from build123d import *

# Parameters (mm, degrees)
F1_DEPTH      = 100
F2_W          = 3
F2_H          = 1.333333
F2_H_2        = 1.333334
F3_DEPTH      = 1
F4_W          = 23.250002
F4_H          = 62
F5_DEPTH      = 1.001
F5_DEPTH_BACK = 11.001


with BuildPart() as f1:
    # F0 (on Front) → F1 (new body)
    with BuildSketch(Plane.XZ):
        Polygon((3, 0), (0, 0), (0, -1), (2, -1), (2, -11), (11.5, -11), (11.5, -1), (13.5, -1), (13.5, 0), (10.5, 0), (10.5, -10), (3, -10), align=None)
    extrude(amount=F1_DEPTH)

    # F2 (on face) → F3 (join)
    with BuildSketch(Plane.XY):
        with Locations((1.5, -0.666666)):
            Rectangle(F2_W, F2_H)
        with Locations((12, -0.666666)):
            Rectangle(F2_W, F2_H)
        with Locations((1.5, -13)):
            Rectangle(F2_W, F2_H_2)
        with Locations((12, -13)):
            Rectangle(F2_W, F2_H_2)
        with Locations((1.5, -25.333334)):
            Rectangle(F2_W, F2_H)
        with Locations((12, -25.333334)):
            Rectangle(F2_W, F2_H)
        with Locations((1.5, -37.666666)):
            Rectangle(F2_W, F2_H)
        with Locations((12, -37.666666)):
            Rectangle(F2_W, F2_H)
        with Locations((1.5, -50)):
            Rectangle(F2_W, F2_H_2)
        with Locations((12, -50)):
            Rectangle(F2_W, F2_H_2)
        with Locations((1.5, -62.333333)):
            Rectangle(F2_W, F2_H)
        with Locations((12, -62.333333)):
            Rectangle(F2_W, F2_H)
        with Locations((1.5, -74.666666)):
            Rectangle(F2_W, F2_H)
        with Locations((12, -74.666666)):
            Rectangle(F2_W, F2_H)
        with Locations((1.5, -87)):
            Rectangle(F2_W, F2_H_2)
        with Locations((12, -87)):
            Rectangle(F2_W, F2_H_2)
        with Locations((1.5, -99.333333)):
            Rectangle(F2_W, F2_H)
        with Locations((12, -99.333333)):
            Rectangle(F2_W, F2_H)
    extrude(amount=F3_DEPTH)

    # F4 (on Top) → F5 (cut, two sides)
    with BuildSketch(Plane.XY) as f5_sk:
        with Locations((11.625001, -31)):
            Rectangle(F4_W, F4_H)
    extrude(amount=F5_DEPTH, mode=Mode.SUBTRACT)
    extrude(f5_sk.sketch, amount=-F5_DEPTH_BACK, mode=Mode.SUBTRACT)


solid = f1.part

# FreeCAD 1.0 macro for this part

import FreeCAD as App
import Part
import Sketcher
from FreeCAD import Vector

doc = App.newDocument("Part")
body = doc.addObject("PartDesign::Body", "Body")

sketch1 = body.newObject("Sketcher::SketchObject", "Sketch")
sketch1.AttachmentSupport = (doc.getObject("XZ_Plane"), [""])
sketch1.MapMode = "FlatFace"
sketch1.addGeometry([
    Part.LineSegment(Vector(3, 0, 0), Vector(0, 0, 0)),
    Part.LineSegment(Vector(0, 0, 0), Vector(0, -1, 0)),
    Part.LineSegment(Vector(0, -1, 0), Vector(2, -1, 0)),
    Part.LineSegment(Vector(2, -1, 0), Vector(2, -11, 0)),
    Part.LineSegment(Vector(2, -11, 0), Vector(11.5, -11, 0)),
    Part.LineSegment(Vector(11.5, -11, 0), Vector(11.5, -1, 0)),
    Part.LineSegment(Vector(11.5, -1, 0), Vector(13.5, -1, 0)),
    Part.LineSegment(Vector(13.5, -1, 0), Vector(13.5, 0, 0)),
    Part.LineSegment(Vector(13.5, 0, 0), Vector(10.5, 0, 0)),
    Part.LineSegment(Vector(10.5, 0, 0), Vector(10.5, -10, 0)),
    Part.LineSegment(Vector(10.5, -10, 0), Vector(3, -10, 0)),
    Part.LineSegment(Vector(3, -10, 0), Vector(3, 0, 0)),
], False)
sketch1.addConstraint([
    Sketcher.Constraint("Coincident", 0, 2, 1, 1),
    Sketcher.Constraint("Coincident", 1, 2, 2, 1),
    Sketcher.Constraint("Coincident", 2, 2, 3, 1),
    Sketcher.Constraint("Coincident", 3, 2, 4, 1),
    Sketcher.Constraint("Coincident", 4, 2, 5, 1),
    Sketcher.Constraint("Coincident", 5, 2, 6, 1),
    Sketcher.Constraint("Coincident", 6, 2, 7, 1),
    Sketcher.Constraint("Coincident", 7, 2, 8, 1),
    Sketcher.Constraint("Coincident", 8, 2, 9, 1),
    Sketcher.Constraint("Coincident", 9, 2, 10, 1),
    Sketcher.Constraint("Coincident", 10, 2, 11, 1),
    Sketcher.Constraint("Coincident", 11, 2, 0, 1),
    Sketcher.Constraint("Horizontal", 0),
    Sketcher.Constraint("Vertical", 1),
    Sketcher.Constraint("Horizontal", 2),
    Sketcher.Constraint("Vertical", 3),
    Sketcher.Constraint("Horizontal", 4),
    Sketcher.Constraint("Vertical", 5),
    Sketcher.Constraint("Horizontal", 6),
    Sketcher.Constraint("Vertical", 7),
    Sketcher.Constraint("Horizontal", 8),
    Sketcher.Constraint("Vertical", 9),
    Sketcher.Constraint("Horizontal", 10),
    Sketcher.Constraint("Vertical", 11),
    Sketcher.Constraint("Coincident", 0, 2, -1, 1),
    Sketcher.Constraint("PointOnObject", 7, 2, -1),
    Sketcher.Constraint("Horizontal", 2, 2, 5, 2),
    Sketcher.Constraint("Equal", 2, 6),
    Sketcher.Constraint("Equal", 0, 8),
    Sketcher.Constraint("Equal", 5, 9),
    Sketcher.Constraint("DistanceX", 0, 2, 0, 1, 3.0),
    Sketcher.Constraint("DistanceX", 2, 1, 2, 2, 2.0),
    Sketcher.Constraint("DistanceY", 1, 2, 1, 1, 1.0),
    Sketcher.Constraint("DistanceY", 3, 2, 3, 1, 10.0),
    Sketcher.Constraint("DistanceX", 4, 1, 4, 2, 9.5),
])
pad1 = body.newObject("PartDesign::Pad", "Pad")
pad1.Profile = sketch1
pad1.Length = 100

sketch2 = body.newObject("Sketcher::SketchObject", "Sketch001")
sketch2.AttachmentSupport = (doc.getObject("XY_Plane"), [""])
sketch2.MapMode = "FlatFace"
sketch2.addGeometry([
    Part.LineSegment(Vector(0, 0, 0), Vector(0, -1.3, 0)),
    Part.LineSegment(Vector(0, -1.3, 0), Vector(3, -1.3, 0)),
    Part.LineSegment(Vector(3, -1.3, 0), Vector(3, 0, 0)),
    Part.LineSegment(Vector(3, 0, 0), Vector(0, 0, 0)),
    Part.LineSegment(Vector(10.5, 0, 0), Vector(10.5, -1.3, 0)),
    Part.LineSegment(Vector(10.5, -1.3, 0), Vector(13.5, -1.3, 0)),
    Part.LineSegment(Vector(13.5, -1.3, 0), Vector(13.5, 0, 0)),
    Part.LineSegment(Vector(13.5, 0, 0), Vector(10.5, 0, 0)),
    Part.LineSegment(Vector(0, -12.3, 0), Vector(0, -13.7, 0)),
    Part.LineSegment(Vector(0, -13.7, 0), Vector(3, -13.7, 0)),
    Part.LineSegment(Vector(3, -13.7, 0), Vector(3, -12.3, 0)),
    Part.LineSegment(Vector(3, -12.3, 0), Vector(0, -12.3, 0)),
    Part.LineSegment(Vector(10.5, -12.3, 0), Vector(10.5, -13.7, 0)),
    Part.LineSegment(Vector(10.5, -13.7, 0), Vector(13.5, -13.7, 0)),
    Part.LineSegment(Vector(13.5, -13.7, 0), Vector(13.5, -12.3, 0)),
    Part.LineSegment(Vector(13.5, -12.3, 0), Vector(10.5, -12.3, 0)),
    Part.LineSegment(Vector(0, -24.7, 0), Vector(0, -26, 0)),
    Part.LineSegment(Vector(0, -26, 0), Vector(3, -26, 0)),
    Part.LineSegment(Vector(3, -26, 0), Vector(3, -24.7, 0)),
    Part.LineSegment(Vector(3, -24.7, 0), Vector(0, -24.7, 0)),
    Part.LineSegment(Vector(10.5, -24.7, 0), Vector(10.5, -26, 0)),
    Part.LineSegment(Vector(10.5, -26, 0), Vector(13.5, -26, 0)),
    Part.LineSegment(Vector(13.5, -26, 0), Vector(13.5, -24.7, 0)),
    Part.LineSegment(Vector(13.5, -24.7, 0), Vector(10.5, -24.7, 0)),
    Part.LineSegment(Vector(0, -37, 0), Vector(0, -38.3, 0)),
    Part.LineSegment(Vector(0, -38.3, 0), Vector(3, -38.3, 0)),
    Part.LineSegment(Vector(3, -38.3, 0), Vector(3, -37, 0)),
    Part.LineSegment(Vector(3, -37, 0), Vector(0, -37, 0)),
    Part.LineSegment(Vector(10.5, -37, 0), Vector(10.5, -38.3, 0)),
    Part.LineSegment(Vector(10.5, -38.3, 0), Vector(13.5, -38.3, 0)),
    Part.LineSegment(Vector(13.5, -38.3, 0), Vector(13.5, -37, 0)),
    Part.LineSegment(Vector(13.5, -37, 0), Vector(10.5, -37, 0)),
    Part.LineSegment(Vector(0, -49.3, 0), Vector(0, -50.7, 0)),
    Part.LineSegment(Vector(0, -50.7, 0), Vector(3, -50.7, 0)),
    Part.LineSegment(Vector(3, -50.7, 0), Vector(3, -49.3, 0)),
    Part.LineSegment(Vector(3, -49.3, 0), Vector(0, -49.3, 0)),
    Part.LineSegment(Vector(10.5, -49.3, 0), Vector(10.5, -50.7, 0)),
    Part.LineSegment(Vector(10.5, -50.7, 0), Vector(13.5, -50.7, 0)),
    Part.LineSegment(Vector(13.5, -50.7, 0), Vector(13.5, -49.3, 0)),
    Part.LineSegment(Vector(13.5, -49.3, 0), Vector(10.5, -49.3, 0)),
    Part.LineSegment(Vector(0, -61.7, 0), Vector(0, -63, 0)),
    Part.LineSegment(Vector(0, -63, 0), Vector(3, -63, 0)),
    Part.LineSegment(Vector(3, -63, 0), Vector(3, -61.7, 0)),
    Part.LineSegment(Vector(3, -61.7, 0), Vector(0, -61.7, 0)),
    Part.LineSegment(Vector(10.5, -61.7, 0), Vector(10.5, -63, 0)),
    Part.LineSegment(Vector(10.5, -63, 0), Vector(13.5, -63, 0)),
    Part.LineSegment(Vector(13.5, -63, 0), Vector(13.5, -61.7, 0)),
    Part.LineSegment(Vector(13.5, -61.7, 0), Vector(10.5, -61.7, 0)),
    Part.LineSegment(Vector(0, -74, 0), Vector(0, -75.3, 0)),
    Part.LineSegment(Vector(0, -75.3, 0), Vector(3, -75.3, 0)),
    Part.LineSegment(Vector(3, -75.3, 0), Vector(3, -74, 0)),
    Part.LineSegment(Vector(3, -74, 0), Vector(0, -74, 0)),
    Part.LineSegment(Vector(10.5, -74, 0), Vector(10.5, -75.3, 0)),
    Part.LineSegment(Vector(10.5, -75.3, 0), Vector(13.5, -75.3, 0)),
    Part.LineSegment(Vector(13.5, -75.3, 0), Vector(13.5, -74, 0)),
    Part.LineSegment(Vector(13.5, -74, 0), Vector(10.5, -74, 0)),
    Part.LineSegment(Vector(0, -86.3, 0), Vector(0, -87.7, 0)),
    Part.LineSegment(Vector(0, -87.7, 0), Vector(3, -87.7, 0)),
    Part.LineSegment(Vector(3, -87.7, 0), Vector(3, -86.3, 0)),
    Part.LineSegment(Vector(3, -86.3, 0), Vector(0, -86.3, 0)),
    Part.LineSegment(Vector(10.5, -86.3, 0), Vector(10.5, -87.7, 0)),
    Part.LineSegment(Vector(10.5, -87.7, 0), Vector(13.5, -87.7, 0)),
    Part.LineSegment(Vector(13.5, -87.7, 0), Vector(13.5, -86.3, 0)),
    Part.LineSegment(Vector(13.5, -86.3, 0), Vector(10.5, -86.3, 0)),
    Part.LineSegment(Vector(0, -98.7, 0), Vector(0, -100, 0)),
    Part.LineSegment(Vector(0, -100, 0), Vector(3, -100, 0)),
    Part.LineSegment(Vector(3, -100, 0), Vector(3, -98.7, 0)),
    Part.LineSegment(Vector(3, -98.7, 0), Vector(0, -98.7, 0)),
    Part.LineSegment(Vector(10.5, -98.7, 0), Vector(10.5, -100, 0)),
    Part.LineSegment(Vector(10.5, -100, 0), Vector(13.5, -100, 0)),
    Part.LineSegment(Vector(13.5, -100, 0), Vector(13.5, -98.7, 0)),
    Part.LineSegment(Vector(13.5, -98.7, 0), Vector(10.5, -98.7, 0)),
], False)
sketch2.addConstraint([
    Sketcher.Constraint("Coincident", 0, 2, 1, 1),
    Sketcher.Constraint("Coincident", 1, 2, 2, 1),
    Sketcher.Constraint("Coincident", 2, 2, 3, 1),
    Sketcher.Constraint("Coincident", 3, 2, 0, 1),
    Sketcher.Constraint("Coincident", 4, 2, 5, 1),
    Sketcher.Constraint("Coincident", 5, 2, 6, 1),
    Sketcher.Constraint("Coincident", 6, 2, 7, 1),
    Sketcher.Constraint("Coincident", 7, 2, 4, 1),
    Sketcher.Constraint("Coincident", 8, 2, 9, 1),
    Sketcher.Constraint("Coincident", 9, 2, 10, 1),
    Sketcher.Constraint("Coincident", 10, 2, 11, 1),
    Sketcher.Constraint("Coincident", 11, 2, 8, 1),
    Sketcher.Constraint("Coincident", 12, 2, 13, 1),
    Sketcher.Constraint("Coincident", 13, 2, 14, 1),
    Sketcher.Constraint("Coincident", 14, 2, 15, 1),
    Sketcher.Constraint("Coincident", 15, 2, 12, 1),
    Sketcher.Constraint("Coincident", 16, 2, 17, 1),
    Sketcher.Constraint("Coincident", 17, 2, 18, 1),
    Sketcher.Constraint("Coincident", 18, 2, 19, 1),
    Sketcher.Constraint("Coincident", 19, 2, 16, 1),
    Sketcher.Constraint("Coincident", 20, 2, 21, 1),
    Sketcher.Constraint("Coincident", 21, 2, 22, 1),
    Sketcher.Constraint("Coincident", 22, 2, 23, 1),
    Sketcher.Constraint("Coincident", 23, 2, 20, 1),
    Sketcher.Constraint("Coincident", 24, 2, 25, 1),
    Sketcher.Constraint("Coincident", 25, 2, 26, 1),
    Sketcher.Constraint("Coincident", 26, 2, 27, 1),
    Sketcher.Constraint("Coincident", 27, 2, 24, 1),
    Sketcher.Constraint("Coincident", 28, 2, 29, 1),
    Sketcher.Constraint("Coincident", 29, 2, 30, 1),
    Sketcher.Constraint("Coincident", 30, 2, 31, 1),
    Sketcher.Constraint("Coincident", 31, 2, 28, 1),
    Sketcher.Constraint("Coincident", 32, 2, 33, 1),
    Sketcher.Constraint("Coincident", 33, 2, 34, 1),
    Sketcher.Constraint("Coincident", 34, 2, 35, 1),
    Sketcher.Constraint("Coincident", 35, 2, 32, 1),
    Sketcher.Constraint("Coincident", 36, 2, 37, 1),
    Sketcher.Constraint("Coincident", 37, 2, 38, 1),
    Sketcher.Constraint("Coincident", 38, 2, 39, 1),
    Sketcher.Constraint("Coincident", 39, 2, 36, 1),
    Sketcher.Constraint("Coincident", 40, 2, 41, 1),
    Sketcher.Constraint("Coincident", 41, 2, 42, 1),
    Sketcher.Constraint("Coincident", 42, 2, 43, 1),
    Sketcher.Constraint("Coincident", 43, 2, 40, 1),
    Sketcher.Constraint("Coincident", 44, 2, 45, 1),
    Sketcher.Constraint("Coincident", 45, 2, 46, 1),
    Sketcher.Constraint("Coincident", 46, 2, 47, 1),
    Sketcher.Constraint("Coincident", 47, 2, 44, 1),
    Sketcher.Constraint("Coincident", 48, 2, 49, 1),
    Sketcher.Constraint("Coincident", 49, 2, 50, 1),
    Sketcher.Constraint("Coincident", 50, 2, 51, 1),
    Sketcher.Constraint("Coincident", 51, 2, 48, 1),
    Sketcher.Constraint("Coincident", 52, 2, 53, 1),
    Sketcher.Constraint("Coincident", 53, 2, 54, 1),
    Sketcher.Constraint("Coincident", 54, 2, 55, 1),
    Sketcher.Constraint("Coincident", 55, 2, 52, 1),
    Sketcher.Constraint("Coincident", 56, 2, 57, 1),
    Sketcher.Constraint("Coincident", 57, 2, 58, 1),
    Sketcher.Constraint("Coincident", 58, 2, 59, 1),
    Sketcher.Constraint("Coincident", 59, 2, 56, 1),
    Sketcher.Constraint("Coincident", 60, 2, 61, 1),
    Sketcher.Constraint("Coincident", 61, 2, 62, 1),
    Sketcher.Constraint("Coincident", 62, 2, 63, 1),
    Sketcher.Constraint("Coincident", 63, 2, 60, 1),
    Sketcher.Constraint("Coincident", 64, 2, 65, 1),
    Sketcher.Constraint("Coincident", 65, 2, 66, 1),
    Sketcher.Constraint("Coincident", 66, 2, 67, 1),
    Sketcher.Constraint("Coincident", 67, 2, 64, 1),
    Sketcher.Constraint("Coincident", 68, 2, 69, 1),
    Sketcher.Constraint("Coincident", 69, 2, 70, 1),
    Sketcher.Constraint("Coincident", 70, 2, 71, 1),
    Sketcher.Constraint("Coincident", 71, 2, 68, 1),
    Sketcher.Constraint("Vertical", 0),
    Sketcher.Constraint("Horizontal", 1),
    Sketcher.Constraint("Vertical", 2),
    Sketcher.Constraint("Horizontal", 3),
    Sketcher.Constraint("Vertical", 4),
    Sketcher.Constraint("Horizontal", 5),
    Sketcher.Constraint("Vertical", 6),
    Sketcher.Constraint("Horizontal", 7),
    Sketcher.Constraint("Vertical", 8),
    Sketcher.Constraint("Horizontal", 9),
    Sketcher.Constraint("Vertical", 10),
    Sketcher.Constraint("Horizontal", 11),
    Sketcher.Constraint("Vertical", 12),
    Sketcher.Constraint("Horizontal", 13),
    Sketcher.Constraint("Vertical", 14),
    Sketcher.Constraint("Horizontal", 15),
    Sketcher.Constraint("Vertical", 16),
    Sketcher.Constraint("Horizontal", 17),
    Sketcher.Constraint("Vertical", 18),
    Sketcher.Constraint("Horizontal", 19),
    Sketcher.Constraint("Vertical", 20),
    Sketcher.Constraint("Horizontal", 21),
    Sketcher.Constraint("Vertical", 22),
    Sketcher.Constraint("Horizontal", 23),
    Sketcher.Constraint("Vertical", 24),
    Sketcher.Constraint("Horizontal", 25),
    Sketcher.Constraint("Vertical", 26),
    Sketcher.Constraint("Horizontal", 27),
    Sketcher.Constraint("Vertical", 28),
    Sketcher.Constraint("Horizontal", 29),
    Sketcher.Constraint("Vertical", 30),
    Sketcher.Constraint("Horizontal", 31),
    Sketcher.Constraint("Vertical", 32),
    Sketcher.Constraint("Horizontal", 33),
    Sketcher.Constraint("Vertical", 34),
    Sketcher.Constraint("Horizontal", 35),
    Sketcher.Constraint("Vertical", 36),
    Sketcher.Constraint("Horizontal", 37),
    Sketcher.Constraint("Vertical", 38),
    Sketcher.Constraint("Horizontal", 39),
    Sketcher.Constraint("Vertical", 40),
    Sketcher.Constraint("Horizontal", 41),
    Sketcher.Constraint("Vertical", 42),
    Sketcher.Constraint("Horizontal", 43),
    Sketcher.Constraint("Vertical", 44),
    Sketcher.Constraint("Horizontal", 45),
    Sketcher.Constraint("Vertical", 46),
    Sketcher.Constraint("Horizontal", 47),
    Sketcher.Constraint("Vertical", 48),
    Sketcher.Constraint("Horizontal", 49),
    Sketcher.Constraint("Vertical", 50),
    Sketcher.Constraint("Horizontal", 51),
    Sketcher.Constraint("Vertical", 52),
    Sketcher.Constraint("Horizontal", 53),
    Sketcher.Constraint("Vertical", 54),
    Sketcher.Constraint("Horizontal", 55),
    Sketcher.Constraint("Vertical", 56),
    Sketcher.Constraint("Horizontal", 57),
    Sketcher.Constraint("Vertical", 58),
    Sketcher.Constraint("Horizontal", 59),
    Sketcher.Constraint("Vertical", 60),
    Sketcher.Constraint("Horizontal", 61),
    Sketcher.Constraint("Vertical", 62),
    Sketcher.Constraint("Horizontal", 63),
    Sketcher.Constraint("Vertical", 64),
    Sketcher.Constraint("Horizontal", 65),
    Sketcher.Constraint("Vertical", 66),
    Sketcher.Constraint("Horizontal", 67),
    Sketcher.Constraint("Vertical", 68),
    Sketcher.Constraint("Horizontal", 69),
    Sketcher.Constraint("Vertical", 70),
    Sketcher.Constraint("Horizontal", 71),
    Sketcher.Constraint("Coincident", 3, 2, -1, 1),
    Sketcher.Constraint("PointOnObject", 6, 2, -1),
    Sketcher.Constraint("PointOnObject", 8, 2, -2),
    Sketcher.Constraint("PointOnObject", 16, 2, -2),
    Sketcher.Constraint("PointOnObject", 24, 2, -2),
    Sketcher.Constraint("PointOnObject", 32, 2, -2),
    Sketcher.Constraint("PointOnObject", 40, 2, -2),
    Sketcher.Constraint("PointOnObject", 48, 2, -2),
    Sketcher.Constraint("PointOnObject", 56, 2, -2),
    Sketcher.Constraint("PointOnObject", 64, 2, -2),
    Sketcher.Constraint("Horizontal", 1, 2, 4, 2),
    Sketcher.Constraint("Horizontal", 9, 2, 12, 2),
    Sketcher.Constraint("Horizontal", 11, 2, 14, 2),
    Sketcher.Constraint("Horizontal", 17, 2, 20, 2),
    Sketcher.Constraint("Horizontal", 19, 2, 22, 2),
    Sketcher.Constraint("Horizontal", 25, 2, 28, 2),
    Sketcher.Constraint("Horizontal", 27, 2, 30, 2),
    Sketcher.Constraint("Horizontal", 33, 2, 36, 2),
    Sketcher.Constraint("Horizontal", 35, 2, 38, 2),
    Sketcher.Constraint("Horizontal", 41, 2, 44, 2),
    Sketcher.Constraint("Horizontal", 43, 2, 46, 2),
    Sketcher.Constraint("Horizontal", 49, 2, 52, 2),
    Sketcher.Constraint("Horizontal", 51, 2, 54, 2),
    Sketcher.Constraint("Horizontal", 57, 2, 60, 2),
    Sketcher.Constraint("Horizontal", 59, 2, 62, 2),
    Sketcher.Constraint("Horizontal", 65, 2, 68, 2),
    Sketcher.Constraint("Horizontal", 67, 2, 70, 2),
    Sketcher.Constraint("Vertical", 2, 2, 9, 2),
    Sketcher.Constraint("Vertical", 7, 2, 12, 2),
    Sketcher.Constraint("Vertical", 6, 2, 13, 2),
    Sketcher.Constraint("Vertical", 10, 2, 17, 2),
    Sketcher.Constraint("Vertical", 15, 2, 20, 2),
    Sketcher.Constraint("Vertical", 14, 2, 21, 2),
    Sketcher.Constraint("Vertical", 18, 2, 25, 2),
    Sketcher.Constraint("Vertical", 23, 2, 28, 2),
    Sketcher.Constraint("Vertical", 22, 2, 29, 2),
    Sketcher.Constraint("Vertical", 26, 2, 33, 2),
    Sketcher.Constraint("Vertical", 31, 2, 36, 2),
    Sketcher.Constraint("Vertical", 30, 2, 37, 2),
    Sketcher.Constraint("Vertical", 34, 2, 41, 2),
    Sketcher.Constraint("Vertical", 39, 2, 44, 2),
    Sketcher.Constraint("Vertical", 38, 2, 45, 2),
    Sketcher.Constraint("Vertical", 42, 2, 49, 2),
    Sketcher.Constraint("Vertical", 47, 2, 52, 2),
    Sketcher.Constraint("Vertical", 46, 2, 53, 2),
    Sketcher.Constraint("Vertical", 50, 2, 57, 2),
    Sketcher.Constraint("Vertical", 55, 2, 60, 2),
    Sketcher.Constraint("Vertical", 54, 2, 61, 2),
    Sketcher.Constraint("Vertical", 58, 2, 65, 2),
    Sketcher.Constraint("Vertical", 63, 2, 68, 2),
    Sketcher.Constraint("Vertical", 62, 2, 69, 2),
    Sketcher.Constraint("Equal", 3, 5),
    Sketcher.Constraint("Equal", 6, 8),
    Sketcher.Constraint("Equal", 14, 16),
    Sketcher.Constraint("Equal", 22, 24),
    Sketcher.Constraint("Equal", 30, 32),
    Sketcher.Constraint("Equal", 38, 40),
    Sketcher.Constraint("Equal", 46, 48),
    Sketcher.Constraint("Equal", 54, 56),
    Sketcher.Constraint("Equal", 62, 64),
    Sketcher.Constraint("DistanceX", 1, 1, 1, 2, 3.0),
    Sketcher.Constraint("DistanceY", 16, 2, -1, 1, 26.0),
    Sketcher.Constraint("DistanceY", 26, 2, -1, 1, 37.0),
    Sketcher.Constraint("DistanceY", 40, 2, -1, 1, 63.0),
    Sketcher.Constraint("DistanceY", 50, 2, -1, 1, 74.0),
    Sketcher.Constraint("DistanceY", 64, 2, -1, 1, 100.0),
    Sketcher.Constraint("DistanceX", -1, 1, 4, 2, 10.5),
    Sketcher.Constraint("DistanceY", 0, 2, 0, 1, 1.333333),
    Sketcher.Constraint("DistanceY", 8, 2, -1, 1, 13.666667),
    Sketcher.Constraint("DistanceY", 32, 2, -1, 1, 50.666667),
    Sketcher.Constraint("DistanceY", 56, 2, -1, 1, 87.666667),
])
pad2 = body.newObject("PartDesign::Pad", "Pad001")
pad2.Profile = sketch2
pad2.Length = 1

sketch3 = body.newObject("Sketcher::SketchObject", "Sketch002")
sketch3.AttachmentSupport = (doc.getObject("XY_Plane"), [""])
sketch3.MapMode = "FlatFace"
sketch3.addGeometry([
    Part.LineSegment(Vector(0, 0, 0), Vector(0, -62, 0)),
    Part.LineSegment(Vector(0, -62, 0), Vector(23, -62, 0)),
    Part.LineSegment(Vector(23, -62, 0), Vector(23, 0, 0)),
    Part.LineSegment(Vector(23, 0, 0), Vector(0, 0, 0)),
], False)
sketch3.addConstraint([
    Sketcher.Constraint("Coincident", 0, 2, 1, 1),
    Sketcher.Constraint("Coincident", 1, 2, 2, 1),
    Sketcher.Constraint("Coincident", 2, 2, 3, 1),
    Sketcher.Constraint("Coincident", 3, 2, 0, 1),
    Sketcher.Constraint("Vertical", 0),
    Sketcher.Constraint("Horizontal", 1),
    Sketcher.Constraint("Vertical", 2),
    Sketcher.Constraint("Horizontal", 3),
    Sketcher.Constraint("Coincident", 3, 2, -1, 1),
    Sketcher.Constraint("DistanceY", 0, 2, 0, 1, 62.0),
    Sketcher.Constraint("DistanceX", 1, 1, 1, 2, 23.250002),
])
pocket1 = body.newObject("PartDesign::Pocket", "Pocket")
pocket1.Profile = sketch3
pocket1.Type = "ThroughAll"
pocket1.Midplane = True

doc.recompute()
